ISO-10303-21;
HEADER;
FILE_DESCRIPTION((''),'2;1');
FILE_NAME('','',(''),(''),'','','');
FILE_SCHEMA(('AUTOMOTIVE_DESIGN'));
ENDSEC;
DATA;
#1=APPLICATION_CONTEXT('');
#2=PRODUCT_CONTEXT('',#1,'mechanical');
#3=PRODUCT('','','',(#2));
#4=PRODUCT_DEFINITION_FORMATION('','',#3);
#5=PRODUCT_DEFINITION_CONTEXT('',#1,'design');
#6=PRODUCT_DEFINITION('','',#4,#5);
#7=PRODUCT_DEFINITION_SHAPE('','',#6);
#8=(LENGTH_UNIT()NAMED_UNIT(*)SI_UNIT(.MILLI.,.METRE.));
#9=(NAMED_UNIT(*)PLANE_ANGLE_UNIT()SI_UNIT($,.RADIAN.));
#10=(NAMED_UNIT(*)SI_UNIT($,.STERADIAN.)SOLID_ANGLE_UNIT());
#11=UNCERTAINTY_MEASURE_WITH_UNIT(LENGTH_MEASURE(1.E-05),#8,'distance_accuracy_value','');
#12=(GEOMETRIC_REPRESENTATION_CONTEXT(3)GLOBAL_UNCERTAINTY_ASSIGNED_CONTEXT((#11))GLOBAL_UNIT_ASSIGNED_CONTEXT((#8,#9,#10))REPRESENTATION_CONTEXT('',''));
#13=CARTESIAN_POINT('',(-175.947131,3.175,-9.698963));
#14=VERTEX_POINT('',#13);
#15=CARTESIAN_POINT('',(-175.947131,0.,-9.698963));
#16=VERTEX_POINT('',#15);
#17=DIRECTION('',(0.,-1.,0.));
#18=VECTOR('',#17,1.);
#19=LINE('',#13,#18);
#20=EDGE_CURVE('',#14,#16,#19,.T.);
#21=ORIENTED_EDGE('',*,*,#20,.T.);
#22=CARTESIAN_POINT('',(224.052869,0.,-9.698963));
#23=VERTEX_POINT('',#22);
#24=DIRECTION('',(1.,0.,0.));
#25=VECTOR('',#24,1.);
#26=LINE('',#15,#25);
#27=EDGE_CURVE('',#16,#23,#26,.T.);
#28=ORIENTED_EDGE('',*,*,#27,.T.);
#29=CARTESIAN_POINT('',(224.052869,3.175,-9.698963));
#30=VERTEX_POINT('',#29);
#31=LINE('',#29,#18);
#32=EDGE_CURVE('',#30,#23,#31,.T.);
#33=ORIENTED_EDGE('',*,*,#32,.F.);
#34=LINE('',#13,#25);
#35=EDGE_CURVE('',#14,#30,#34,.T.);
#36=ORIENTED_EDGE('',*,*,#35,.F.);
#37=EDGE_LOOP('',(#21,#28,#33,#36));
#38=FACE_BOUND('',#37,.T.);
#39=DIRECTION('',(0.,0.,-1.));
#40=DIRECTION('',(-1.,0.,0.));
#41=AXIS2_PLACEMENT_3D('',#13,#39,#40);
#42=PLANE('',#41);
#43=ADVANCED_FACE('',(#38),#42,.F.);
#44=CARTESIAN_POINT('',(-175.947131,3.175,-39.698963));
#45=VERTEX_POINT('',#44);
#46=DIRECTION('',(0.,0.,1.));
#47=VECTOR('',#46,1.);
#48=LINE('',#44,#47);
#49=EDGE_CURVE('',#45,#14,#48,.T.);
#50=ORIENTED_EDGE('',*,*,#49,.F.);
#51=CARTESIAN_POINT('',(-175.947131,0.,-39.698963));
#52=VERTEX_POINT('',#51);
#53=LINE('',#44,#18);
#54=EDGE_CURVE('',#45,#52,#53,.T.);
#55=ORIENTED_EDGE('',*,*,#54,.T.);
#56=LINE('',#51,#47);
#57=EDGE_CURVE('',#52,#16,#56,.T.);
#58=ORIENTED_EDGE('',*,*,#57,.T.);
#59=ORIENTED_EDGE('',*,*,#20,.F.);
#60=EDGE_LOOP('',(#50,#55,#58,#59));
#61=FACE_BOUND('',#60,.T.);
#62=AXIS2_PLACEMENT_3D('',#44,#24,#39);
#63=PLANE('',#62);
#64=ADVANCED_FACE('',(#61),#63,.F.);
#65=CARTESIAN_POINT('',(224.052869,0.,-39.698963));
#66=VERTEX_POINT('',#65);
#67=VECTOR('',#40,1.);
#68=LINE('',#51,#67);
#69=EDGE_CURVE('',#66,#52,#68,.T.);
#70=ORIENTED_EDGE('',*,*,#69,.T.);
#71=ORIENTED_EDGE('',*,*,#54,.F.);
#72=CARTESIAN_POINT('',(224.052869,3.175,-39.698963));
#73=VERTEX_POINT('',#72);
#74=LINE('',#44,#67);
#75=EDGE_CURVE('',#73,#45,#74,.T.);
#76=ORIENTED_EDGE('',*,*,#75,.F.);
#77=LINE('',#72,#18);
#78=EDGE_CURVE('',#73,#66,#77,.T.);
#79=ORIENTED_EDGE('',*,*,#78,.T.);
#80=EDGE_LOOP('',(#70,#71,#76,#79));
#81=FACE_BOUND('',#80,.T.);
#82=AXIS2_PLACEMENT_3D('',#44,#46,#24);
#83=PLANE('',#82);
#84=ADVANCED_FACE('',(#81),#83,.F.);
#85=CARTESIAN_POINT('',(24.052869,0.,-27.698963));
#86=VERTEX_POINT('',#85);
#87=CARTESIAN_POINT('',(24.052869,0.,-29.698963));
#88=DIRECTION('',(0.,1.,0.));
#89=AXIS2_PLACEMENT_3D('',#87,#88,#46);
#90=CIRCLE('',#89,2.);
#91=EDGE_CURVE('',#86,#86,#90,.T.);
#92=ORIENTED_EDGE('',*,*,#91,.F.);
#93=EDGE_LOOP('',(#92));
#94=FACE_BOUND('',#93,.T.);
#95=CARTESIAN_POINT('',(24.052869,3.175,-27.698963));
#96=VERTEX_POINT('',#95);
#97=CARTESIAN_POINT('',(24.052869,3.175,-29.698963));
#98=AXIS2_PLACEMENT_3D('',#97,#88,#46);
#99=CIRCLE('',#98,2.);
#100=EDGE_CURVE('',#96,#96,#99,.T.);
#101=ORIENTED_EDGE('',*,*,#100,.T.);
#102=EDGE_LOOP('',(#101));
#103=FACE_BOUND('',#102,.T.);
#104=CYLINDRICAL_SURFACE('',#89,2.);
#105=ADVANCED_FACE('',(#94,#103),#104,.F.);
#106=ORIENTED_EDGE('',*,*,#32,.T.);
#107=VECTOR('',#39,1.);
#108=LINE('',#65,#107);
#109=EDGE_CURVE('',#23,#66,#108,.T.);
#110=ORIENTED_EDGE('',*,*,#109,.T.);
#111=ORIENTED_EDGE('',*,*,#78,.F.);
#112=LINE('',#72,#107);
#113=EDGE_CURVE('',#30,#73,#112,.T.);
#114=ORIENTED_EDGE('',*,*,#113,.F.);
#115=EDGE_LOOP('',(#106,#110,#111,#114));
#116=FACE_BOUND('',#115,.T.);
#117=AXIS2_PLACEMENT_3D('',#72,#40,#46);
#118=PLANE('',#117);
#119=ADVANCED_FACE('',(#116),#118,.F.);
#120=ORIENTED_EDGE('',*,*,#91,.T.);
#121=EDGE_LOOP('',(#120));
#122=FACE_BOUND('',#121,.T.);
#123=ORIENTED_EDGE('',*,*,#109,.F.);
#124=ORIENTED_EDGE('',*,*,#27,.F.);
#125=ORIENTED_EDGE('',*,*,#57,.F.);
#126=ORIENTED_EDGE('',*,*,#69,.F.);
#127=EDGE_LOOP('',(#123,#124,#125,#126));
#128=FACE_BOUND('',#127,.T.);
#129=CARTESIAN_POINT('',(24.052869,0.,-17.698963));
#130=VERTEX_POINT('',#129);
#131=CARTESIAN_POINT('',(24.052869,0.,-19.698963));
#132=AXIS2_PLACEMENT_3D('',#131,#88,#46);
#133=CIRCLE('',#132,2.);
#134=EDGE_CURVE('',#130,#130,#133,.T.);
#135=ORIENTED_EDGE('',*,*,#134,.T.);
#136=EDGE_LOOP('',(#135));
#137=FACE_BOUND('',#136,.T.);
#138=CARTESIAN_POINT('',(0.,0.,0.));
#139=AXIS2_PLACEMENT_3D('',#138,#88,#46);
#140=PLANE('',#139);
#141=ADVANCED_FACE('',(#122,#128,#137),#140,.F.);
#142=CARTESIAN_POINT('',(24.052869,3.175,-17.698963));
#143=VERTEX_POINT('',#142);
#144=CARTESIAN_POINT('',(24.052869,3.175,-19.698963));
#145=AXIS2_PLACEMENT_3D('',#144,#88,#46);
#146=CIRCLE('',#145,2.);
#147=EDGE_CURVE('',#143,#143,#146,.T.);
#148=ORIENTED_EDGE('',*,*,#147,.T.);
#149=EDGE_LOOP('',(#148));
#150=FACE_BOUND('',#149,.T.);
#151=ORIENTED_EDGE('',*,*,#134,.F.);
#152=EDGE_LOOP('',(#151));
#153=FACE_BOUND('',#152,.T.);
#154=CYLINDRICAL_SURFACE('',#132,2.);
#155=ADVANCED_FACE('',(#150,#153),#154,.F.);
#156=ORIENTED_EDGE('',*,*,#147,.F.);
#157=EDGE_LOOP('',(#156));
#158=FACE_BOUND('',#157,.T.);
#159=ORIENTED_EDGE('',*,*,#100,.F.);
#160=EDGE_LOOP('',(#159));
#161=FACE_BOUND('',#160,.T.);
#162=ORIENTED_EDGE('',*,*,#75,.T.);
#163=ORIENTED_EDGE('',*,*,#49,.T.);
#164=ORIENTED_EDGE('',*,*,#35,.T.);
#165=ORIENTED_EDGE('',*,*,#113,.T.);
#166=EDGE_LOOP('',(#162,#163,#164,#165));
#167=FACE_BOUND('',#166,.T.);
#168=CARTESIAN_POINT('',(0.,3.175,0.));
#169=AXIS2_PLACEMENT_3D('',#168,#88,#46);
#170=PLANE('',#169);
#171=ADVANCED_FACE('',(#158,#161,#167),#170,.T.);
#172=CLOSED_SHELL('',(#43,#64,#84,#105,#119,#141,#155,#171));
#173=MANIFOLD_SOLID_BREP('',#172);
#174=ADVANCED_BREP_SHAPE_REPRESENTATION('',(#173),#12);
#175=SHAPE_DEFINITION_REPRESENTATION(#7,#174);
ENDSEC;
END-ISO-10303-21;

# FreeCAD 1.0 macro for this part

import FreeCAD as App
import Part
import Sketcher
Q = App.Units.Quantity

doc = App.newDocument("Part")
params = doc.addObject("Spreadsheet::Sheet", "Params")
for row, (alias, value) in enumerate([
    ("sketch1_width", "400 mm"),
    ("sketch1_height", "30 mm"),
    ("pad1_length", "3.175 mm"),
    ("sketch2_diameter", "4 mm"),
    ("pocket1_length", "3.175 mm"),
], start=1):
    params.set(f"A{row}", alias)
    params.set(f"B{row}", "=" + value)
    params.setAlias(f"B{row}", alias)

body = doc.addObject("PartDesign::Body", "Body")

sketch1 = body.newObject("Sketcher::SketchObject", "Sketch")
sketch1.AttachmentSupport = (doc.getObject("XZ_Plane"), [""])
sketch1.MapMode = "FlatFace"
sketch1.addGeometry([
    Part.LineSegment(App.Vector(-176, -40, 0), App.Vector(-176, -10, 0)),
    Part.LineSegment(App.Vector(-176, -10, 0), App.Vector(224, -10, 0)),
    Part.LineSegment(App.Vector(224, -10, 0), App.Vector(224, -40, 0)),
    Part.LineSegment(App.Vector(224, -40, 0), App.Vector(-176, -40, 0)),
], False)
sketch1.addConstraint([
    Sketcher.Constraint("Coincident", 0, 2, 1, 1),
    Sketcher.Constraint("Coincident", 1, 2, 2, 1),
    Sketcher.Constraint("Coincident", 2, 2, 3, 1),
    Sketcher.Constraint("Coincident", 3, 2, 0, 1),
    Sketcher.Constraint("Vertical", 0),
    Sketcher.Constraint("Horizontal", 1),
    Sketcher.Constraint("Vertical", 2),
    Sketcher.Constraint("Horizontal", 3),
    Sketcher.Constraint("DistanceX", 1, 1, 1, 2, Q("400 mm")),
    Sketcher.Constraint("DistanceY", 0, 1, 0, 2, Q("30 mm")),
    Sketcher.Constraint("DistanceX", 0, 2, -1, 1, Q("175.947131 mm")),
    Sketcher.Constraint("DistanceY", 0, 2, -1, 1, Q("9.698963 mm")),
])
sketch1.setExpression("Constraints[8]", "Params.sketch1_width")
sketch1.setExpression("Constraints[9]", "Params.sketch1_height")
pad1 = body.newObject("PartDesign::Pad", "Pad")
pad1.Profile = sketch1
pad1.setExpression("Length", "Params.pad1_length")
pad1.Reversed = True

sketch2 = body.newObject("Sketcher::SketchObject", "Sketch001")
sketch2.AttachmentSupport = (doc.getObject("XZ_Plane"), [""])
sketch2.MapMode = "FlatFace"
sketch2.AttachmentOffset = App.Placement(App.Vector(0, 0, -3.175), App.Rotation())
sketch2.addGeometry([
    Part.Circle(App.Vector(24.1, -29.7, 0), App.Vector(0, 0, 1), 2),
    Part.Circle(App.Vector(24.1, -19.7, 0), App.Vector(0, 0, 1), 2),
], False)
sketch2.addConstraint([
    Sketcher.Constraint("Equal", 0, 1),
    Sketcher.Constraint("Vertical", 0, 3, 1, 3),
    Sketcher.Constraint("Diameter", 0, Q("4 mm")),
    Sketcher.Constraint("DistanceY", 0, 3, 1, 3, Q("10 mm")),
    Sketcher.Constraint("DistanceX", -1, 1, 0, 3, Q("24.052869 mm")),
    Sketcher.Constraint("DistanceY", 0, 3, -1, 1, Q("29.698963 mm")),
])
sketch2.setExpression("Constraints[2]", "Params.sketch2_diameter")
pocket1 = body.newObject("PartDesign::Pocket", "Pocket")
pocket1.Profile = sketch2
pocket1.setExpression("Length", "Params.pocket1_length")
pocket1.Reversed = True

doc.recompute()
